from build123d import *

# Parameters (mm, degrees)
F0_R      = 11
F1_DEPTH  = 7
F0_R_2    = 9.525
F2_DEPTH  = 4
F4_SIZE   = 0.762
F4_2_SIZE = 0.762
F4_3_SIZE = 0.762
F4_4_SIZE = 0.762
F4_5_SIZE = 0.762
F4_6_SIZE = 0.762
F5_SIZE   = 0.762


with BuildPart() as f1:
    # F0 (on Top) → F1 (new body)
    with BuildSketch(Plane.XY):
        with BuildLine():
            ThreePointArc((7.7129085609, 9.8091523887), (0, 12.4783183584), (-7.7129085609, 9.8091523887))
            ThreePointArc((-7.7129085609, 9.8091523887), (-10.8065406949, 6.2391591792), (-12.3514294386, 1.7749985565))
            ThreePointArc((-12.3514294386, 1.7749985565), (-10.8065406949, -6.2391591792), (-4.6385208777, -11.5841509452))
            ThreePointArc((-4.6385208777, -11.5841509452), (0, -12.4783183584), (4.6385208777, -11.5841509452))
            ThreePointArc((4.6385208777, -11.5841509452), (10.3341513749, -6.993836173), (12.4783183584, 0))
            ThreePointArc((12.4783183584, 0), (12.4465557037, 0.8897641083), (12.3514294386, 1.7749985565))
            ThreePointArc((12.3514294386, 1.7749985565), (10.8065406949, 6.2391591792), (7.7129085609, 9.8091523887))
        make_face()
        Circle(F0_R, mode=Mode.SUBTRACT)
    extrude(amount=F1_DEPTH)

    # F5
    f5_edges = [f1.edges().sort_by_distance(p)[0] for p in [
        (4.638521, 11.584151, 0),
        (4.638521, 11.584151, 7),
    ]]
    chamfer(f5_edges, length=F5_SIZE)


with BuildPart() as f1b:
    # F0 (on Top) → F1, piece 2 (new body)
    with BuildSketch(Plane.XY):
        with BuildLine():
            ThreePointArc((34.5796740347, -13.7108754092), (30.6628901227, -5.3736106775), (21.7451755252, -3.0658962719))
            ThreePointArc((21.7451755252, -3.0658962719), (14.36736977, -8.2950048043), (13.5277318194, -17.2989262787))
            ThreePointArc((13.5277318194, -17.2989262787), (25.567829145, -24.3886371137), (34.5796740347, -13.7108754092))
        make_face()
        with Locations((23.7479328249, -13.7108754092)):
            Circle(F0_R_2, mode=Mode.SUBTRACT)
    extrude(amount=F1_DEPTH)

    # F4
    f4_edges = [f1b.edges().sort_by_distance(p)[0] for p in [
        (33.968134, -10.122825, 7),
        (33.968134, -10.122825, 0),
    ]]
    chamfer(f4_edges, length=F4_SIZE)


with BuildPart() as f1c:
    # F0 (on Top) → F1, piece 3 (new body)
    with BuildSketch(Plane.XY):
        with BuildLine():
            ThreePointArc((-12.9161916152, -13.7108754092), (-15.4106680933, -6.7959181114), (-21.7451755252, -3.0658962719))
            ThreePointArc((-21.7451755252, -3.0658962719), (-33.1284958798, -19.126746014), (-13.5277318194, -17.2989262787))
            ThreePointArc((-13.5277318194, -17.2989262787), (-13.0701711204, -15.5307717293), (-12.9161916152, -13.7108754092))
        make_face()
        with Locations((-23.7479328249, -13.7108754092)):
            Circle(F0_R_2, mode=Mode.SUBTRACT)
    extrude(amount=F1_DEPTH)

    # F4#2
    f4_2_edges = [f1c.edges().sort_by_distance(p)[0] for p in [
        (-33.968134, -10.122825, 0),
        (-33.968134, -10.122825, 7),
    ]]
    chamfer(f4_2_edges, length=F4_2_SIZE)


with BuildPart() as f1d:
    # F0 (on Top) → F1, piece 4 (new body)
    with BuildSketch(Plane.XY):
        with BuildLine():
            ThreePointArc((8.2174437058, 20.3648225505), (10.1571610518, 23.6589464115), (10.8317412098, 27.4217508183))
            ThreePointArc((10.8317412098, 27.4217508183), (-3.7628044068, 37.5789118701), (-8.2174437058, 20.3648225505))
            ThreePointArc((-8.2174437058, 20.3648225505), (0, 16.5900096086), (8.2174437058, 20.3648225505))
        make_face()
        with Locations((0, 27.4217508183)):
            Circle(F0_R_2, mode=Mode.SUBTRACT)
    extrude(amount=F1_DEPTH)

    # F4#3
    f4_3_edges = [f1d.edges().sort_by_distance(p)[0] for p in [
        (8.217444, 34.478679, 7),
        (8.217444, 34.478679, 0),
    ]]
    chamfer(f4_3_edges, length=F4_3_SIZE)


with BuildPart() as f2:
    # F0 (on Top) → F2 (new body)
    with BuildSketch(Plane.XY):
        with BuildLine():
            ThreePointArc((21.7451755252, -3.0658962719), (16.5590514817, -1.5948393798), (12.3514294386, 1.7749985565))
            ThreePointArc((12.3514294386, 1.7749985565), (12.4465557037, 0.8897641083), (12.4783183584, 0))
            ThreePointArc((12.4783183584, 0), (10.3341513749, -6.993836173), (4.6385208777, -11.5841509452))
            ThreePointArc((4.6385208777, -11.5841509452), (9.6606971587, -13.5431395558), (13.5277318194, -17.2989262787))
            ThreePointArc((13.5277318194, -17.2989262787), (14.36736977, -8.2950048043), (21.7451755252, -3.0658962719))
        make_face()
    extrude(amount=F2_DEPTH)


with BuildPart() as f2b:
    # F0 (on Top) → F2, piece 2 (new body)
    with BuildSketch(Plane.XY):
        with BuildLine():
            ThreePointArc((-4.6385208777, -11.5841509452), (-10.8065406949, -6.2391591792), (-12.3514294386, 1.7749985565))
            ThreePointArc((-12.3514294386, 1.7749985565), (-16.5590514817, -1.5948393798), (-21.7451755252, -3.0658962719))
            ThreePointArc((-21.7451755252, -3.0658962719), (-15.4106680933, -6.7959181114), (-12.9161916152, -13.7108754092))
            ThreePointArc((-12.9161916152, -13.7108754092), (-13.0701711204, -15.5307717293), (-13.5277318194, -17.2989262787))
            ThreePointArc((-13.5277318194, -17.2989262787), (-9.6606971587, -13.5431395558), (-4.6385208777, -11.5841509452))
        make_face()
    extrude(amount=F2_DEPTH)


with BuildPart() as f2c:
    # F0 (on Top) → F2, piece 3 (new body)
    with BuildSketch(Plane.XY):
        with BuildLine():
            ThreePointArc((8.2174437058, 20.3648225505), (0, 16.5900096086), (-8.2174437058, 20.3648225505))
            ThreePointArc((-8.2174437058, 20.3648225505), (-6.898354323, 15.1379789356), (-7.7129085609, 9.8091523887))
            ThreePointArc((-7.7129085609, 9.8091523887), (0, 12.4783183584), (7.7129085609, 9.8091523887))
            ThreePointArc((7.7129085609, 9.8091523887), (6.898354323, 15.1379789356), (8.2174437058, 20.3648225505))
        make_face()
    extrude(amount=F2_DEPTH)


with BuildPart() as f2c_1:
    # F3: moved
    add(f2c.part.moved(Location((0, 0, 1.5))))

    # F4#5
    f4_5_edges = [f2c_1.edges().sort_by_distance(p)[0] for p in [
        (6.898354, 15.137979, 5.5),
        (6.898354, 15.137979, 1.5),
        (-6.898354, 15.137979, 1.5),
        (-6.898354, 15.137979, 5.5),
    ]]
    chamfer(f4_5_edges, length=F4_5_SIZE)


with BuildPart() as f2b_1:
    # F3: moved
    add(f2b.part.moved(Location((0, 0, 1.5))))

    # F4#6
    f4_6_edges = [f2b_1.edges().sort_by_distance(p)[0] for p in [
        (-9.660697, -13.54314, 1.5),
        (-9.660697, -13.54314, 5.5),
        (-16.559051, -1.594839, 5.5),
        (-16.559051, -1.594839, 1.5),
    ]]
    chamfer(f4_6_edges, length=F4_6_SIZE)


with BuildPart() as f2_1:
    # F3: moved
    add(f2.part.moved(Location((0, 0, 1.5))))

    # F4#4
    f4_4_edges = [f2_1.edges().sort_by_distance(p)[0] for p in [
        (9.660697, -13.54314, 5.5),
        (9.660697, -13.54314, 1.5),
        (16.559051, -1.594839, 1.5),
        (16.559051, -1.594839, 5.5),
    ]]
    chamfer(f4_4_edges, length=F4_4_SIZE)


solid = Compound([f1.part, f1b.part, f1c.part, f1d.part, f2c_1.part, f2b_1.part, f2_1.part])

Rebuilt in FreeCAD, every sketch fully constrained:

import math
import FreeCAD as App
import Part
import Sketcher
Q = App.Units.Quantity


def edges_at(feature, points):
    """Names of the edges that pass closest to the given points."""
    edges = feature.Shape.Edges
    near = lambda p: min(range(len(edges)), key=lambda i: edges[i].distToShape(Part.Vertex(*p))[0])
    return sorted({f"Edge{near(p) + 1}" for p in points})

doc = App.newDocument("Part")
body = doc.addObject("PartDesign::Body", "Body")

# Sketch on XY plane
sketch1 = body.newObject("Sketcher::SketchObject", "Sketch")
sketch1.AttachmentSupport = (doc.getObject("XY_Plane"), [""])
sketch1.MapMode = "FlatFace"
sketch1.addGeometry(Part.ArcOfCircle(Part.Circle(App.Vector(0, 0, 0), App.Vector(0, 0, 1), 12.5), math.radians(52), math.radians(128)), False)
sketch1.addGeometry(Part.ArcOfCircle(Part.Circle(App.Vector(0, 0, 0), App.Vector(0, 0, 1), 12.5), math.radians(128), math.radians(172)), False)
sketch1.addGeometry(Part.ArcOfCircle(Part.Circle(App.Vector(0, 0, 0), App.Vector(0, 0, 1), 12.5), math.radians(172), math.radians(248)), False)
sketch1.addGeometry(Part.ArcOfCircle(Part.Circle(App.Vector(0, 0, 0), App.Vector(0, 0, 1), 12.5), math.radians(-112), math.radians(-68)), False)
sketch1.addGeometry(Part.ArcOfCircle(Part.Circle(App.Vector(0, 0, 0), App.Vector(0, 0, 1), 12.5), math.radians(-68), math.radians(0)), False)
sketch1.addGeometry(Part.ArcOfCircle(Part.Circle(App.Vector(0, 0, 0), App.Vector(0, 0, 1), 12.5), math.radians(0), math.radians(8.18)), False)
sketch1.addGeometry(Part.ArcOfCircle(Part.Circle(App.Vector(0, 0, 0), App.Vector(0, 0, 1), 12.5), math.radians(8), math.radians(52)), False)
sketch1.addGeometry(Part.Circle(App.Vector(0, 0, 0), App.Vector(0, 0, 1), 11), False)
sketch1.addConstraint(Sketcher.Constraint("Tangent", 0, 2, 1, 1))
sketch1.addConstraint(Sketcher.Constraint("Tangent", 1, 2, 2, 1))
sketch1.addConstraint(Sketcher.Constraint("Tangent", 2, 2, 3, 1))
sketch1.addConstraint(Sketcher.Constraint("Tangent", 3, 2, 4, 1))
sketch1.addConstraint(Sketcher.Constraint("Tangent", 4, 2, 5, 1))
sketch1.addConstraint(Sketcher.Constraint("Tangent", 5, 2, 6, 1))
sketch1.addConstraint(Sketcher.Constraint("Tangent", 6, 2, 0, 1))
sketch1.addConstraint(Sketcher.Constraint("Coincident", 0, 3, -1, 1))
sketch1.addConstraint(Sketcher.Constraint("Coincident", 2, 3, -1, 1))
sketch1.addConstraint(Sketcher.Constraint("Coincident", 4, 3, -1, 1))
sketch1.addConstraint(Sketcher.Constraint("Coincident", 7, 3, -1, 1))
sketch1.addConstraint(Sketcher.Constraint("PointOnObject", 4, 2, -1))
sketch1.addConstraint(Sketcher.Constraint("Horizontal", 2, 2, 3, 2))
sketch1.addConstraint(Sketcher.Constraint("Horizontal", 1, 2, 5, 2))
sketch1.addConstraint(Sketcher.Constraint("Horizontal", 0, 2, 6, 2))
sketch1.addConstraint(Sketcher.Constraint("Diameter", 7, Q("22 mm")))
sketch1.addConstraint(Sketcher.Constraint("Radius", 0, Q("12.478318 mm")))
sketch1.addConstraint(Sketcher.Constraint("DistanceY", -1, 1, 1, 2, Q("1.774999 mm")))
sketch1.addConstraint(Sketcher.Constraint("DistanceX", 0, 2, -1, 1, Q("7.712909 mm")))
sketch1.addConstraint(Sketcher.Constraint("DistanceX", 2, 2, -1, 1, Q("4.638521 mm")))
pad1 = body.newObject("PartDesign::Pad", "Pad")
pad1.Profile = sketch1
pad1.Length = 7
doc.recompute()

chamfer = body.newObject("PartDesign::Chamfer", "Chamfer")
chamfer.Base = (pad1, edges_at(pad1, [(0, 12.478, 0), (0, 12.478, 7)]))
chamfer.Size = 0.762
body2 = doc.addObject("PartDesign::Body", "Body001")

# Sketch on XY plane
sketch2 = body2.newObject("Sketcher::SketchObject", "Sketch001")
sketch2.AttachmentSupport = (doc.getObject("XY_Plane001"), [""])
sketch2.MapMode = "FlatFace"
sketch2.addGeometry(Part.ArcOfCircle(Part.Circle(App.Vector(24, -14, 0), App.Vector(0, 0, 1), 11), math.radians(0), math.radians(101)), False)
sketch2.addGeometry(Part.ArcOfCircle(Part.Circle(App.Vector(24, -14, 0), App.Vector(0, 0, 1), 11), math.radians(101), math.radians(199)), False)
sketch2.addGeometry(Part.ArcOfCircle(Part.Circle(App.Vector(24, -14, 0), App.Vector(0, 0, 1), 11), math.radians(-161), math.radians(0)), False)
sketch2.addGeometry(Part.Circle(App.Vector(24, -14, 0), App.Vector(0, 0, 1), 10), False)
sketch2.addConstraint(Sketcher.Constraint("Tangent", 0, 2, 1, 1))
sketch2.addConstraint(Sketcher.Constraint("Tangent", 1, 2, 2, 1))
sketch2.addConstraint(Sketcher.Constraint("Tangent", 2, 2, 0, 1))
sketch2.addConstraint(Sketcher.Constraint("Coincident", 3, 3, 0, 3))
sketch2.addConstraint(Sketcher.Constraint("Horizontal", 3, 3, 2, 2))
sketch2.addConstraint(Sketcher.Constraint("Diameter", 3, Q("19.05 mm")))
sketch2.addConstraint(Sketcher.Constraint("Radius", 0, Q("10.831741 mm")))
sketch2.addConstraint(Sketcher.Constraint("DistanceX", 1, 2, 0, 3, Q("10.220201 mm")))
sketch2.addConstraint(Sketcher.Constraint("DistanceX", 0, 2, 2, 2, Q("12.834499 mm")))
sketch2.addConstraint(Sketcher.Constraint("DistanceX", -1, 1, 1, 2, Q("13.527732 mm")))
sketch2.addConstraint(Sketcher.Constraint("DistanceY", 0, 3, -1, 1, Q("13.710875 mm")))
pad2 = body2.newObject("PartDesign::Pad", "Pad001")
pad2.Profile = sketch2
pad2.Length = 7
doc.recompute()

chamfer2 = body2.newObject("PartDesign::Chamfer", "Chamfer001")
chamfer2.Base = (pad2, edges_at(pad2, [(30.663, -5.374, 7), (30.663, -5.374, 0)]))
chamfer2.Size = 0.762
body3 = doc.addObject("PartDesign::Body", "Body002")

# Sketch on XY plane
sketch3 = body3.newObject("Sketcher::SketchObject", "Sketch002")
sketch3.AttachmentSupport = (doc.getObject("XY_Plane002"), [""])
sketch3.MapMode = "FlatFace"
sketch3.addGeometry(Part.ArcOfCircle(Part.Circle(App.Vector(-23.7, -13.7, 0), App.Vector(0, 0, 1), 10.8), math.radians(0), math.radians(79)), False)
sketch3.addGeometry(Part.ArcOfCircle(Part.Circle(App.Vector(-23.7, -13.7, 0), App.Vector(0, 0, 1), 10.8), math.radians(79), math.radians(341)), False)
sketch3.addGeometry(Part.ArcOfCircle(Part.Circle(App.Vector(-23.7, -13.7, 0), App.Vector(0, 0, 1), 10.8), math.radians(-19.34), math.radians(0)), False)
sketch3.addGeometry(Part.Circle(App.Vector(-23.7, -13.7, 0), App.Vector(0, 0, 1), 9.5), False)
sketch3.addConstraint(Sketcher.Constraint("Tangent", 0, 2, 1, 1))
sketch3.addConstraint(Sketcher.Constraint("Tangent", 1, 2, 2, 1))
sketch3.addConstraint(Sketcher.Constraint("Tangent", 2, 2, 0, 1))
sketch3.addConstraint(Sketcher.Constraint("Coincident", 3, 3, 0, 3))
sketch3.addConstraint(Sketcher.Constraint("Horizontal", 3, 3, 2, 2))
sketch3.addConstraint(Sketcher.Constraint("Diameter", 3, Q("19.05 mm")))
sketch3.addConstraint(Sketcher.Constraint("Radius", 0, Q("10.831741 mm")))
sketch3.addConstraint(Sketcher.Constraint("DistanceX", 0, 3, 1, 2, Q("10.220201 mm")))
sketch3.addConstraint(Sketcher.Constraint("DistanceX", 1, 2, -1, 1, Q("13.527732 mm")))
sketch3.addConstraint(Sketcher.Constraint("DistanceY", 0, 3, 0, 2, Q("10.644979 mm")))
sketch3.addConstraint(Sketcher.Constraint("DistanceY", 0, 3, -1, 1, Q("13.710875 mm")))
pad3 = body3.newObject("PartDesign::Pad", "Pad002")
pad3.Profile = sketch3
pad3.Length = 7
doc.recompute()

chamfer3 = body3.newObject("PartDesign::Chamfer", "Chamfer002")
chamfer3.Base = (pad3, edges_at(pad3, [(-33.128, -19.127, 0), (-33.128, -19.127, 7)]))
chamfer3.Size = 0.762
body4 = doc.addObject("PartDesign::Body", "Body003")

# Sketch on XY plane
sketch4 = body4.newObject("Sketcher::SketchObject", "Sketch003")
sketch4.AttachmentSupport = (doc.getObject("XY_Plane003"), [""])
sketch4.MapMode = "FlatFace"
sketch4.addGeometry(Part.ArcOfCircle(Part.Circle(App.Vector(0, 27, 0), App.Vector(0, 0, 1), 11), math.radians(-41), math.radians(0)), False)
sketch4.addGeometry(Part.ArcOfCircle(Part.Circle(App.Vector(0, 27, 0), App.Vector(0, 0, 1), 11), math.radians(0), math.radians(221)), False)
sketch4.addGeometry(Part.ArcOfCircle(Part.Circle(App.Vector(0, 27, 0), App.Vector(0, 0, 1), 11), math.radians(-139), math.radians(-41)), False)
sketch4.addGeometry(Part.Circle(App.Vector(0, 27, 0), App.Vector(0, 0, 1), 10), False)
sketch4.addConstraint(Sketcher.Constraint("Tangent", 0, 2, 1, 1))
sketch4.addConstraint(Sketcher.Constraint("Tangent", 1, 2, 2, 1))
sketch4.addConstraint(Sketcher.Constraint("Tangent", 2, 2, 0, 1))
sketch4.addConstraint(Sketcher.Constraint("Coincident", 3, 3, 0, 3))
sketch4.addConstraint(Sketcher.Constraint("Symmetric", 1, 2, 2, 2, -2))
sketch4.addConstraint(Sketcher.Constraint("Horizontal", 3, 3, 0, 2))
sketch4.addConstraint(Sketcher.Constraint("Diameter", 3, Q("19.05 mm")))
sketch4.addConstraint(Sketcher.Constraint("Radius", 0, Q("10.831741 mm")))
sketch4.addConstraint(Sketcher.Constraint("DistanceY", -1, 1, 0, 3, Q("27.421751 mm")))
sketch4.addConstraint(Sketcher.Constraint("DistanceY", 1, 2, 0, 3, Q("7.056928 mm")))
pad4 = body4.newObject("PartDesign::Pad", "Pad003")
pad4.Profile = sketch4
pad4.Length = 7
doc.recompute()

chamfer4 = body4.newObject("PartDesign::Chamfer", "Chamfer003")
chamfer4.Base = (pad4, edges_at(pad4, [(-3.763, 37.579, 7), (-3.763, 37.579, 0)]))
chamfer4.Size = 0.762
body5 = doc.addObject("PartDesign::Body", "Body004")

# Sketch on XY plane
sketch5 = body5.newObject("Sketcher::SketchObject", "Sketch004")
sketch5.AttachmentSupport = (doc.getObject("XY_Plane004"), [""])
sketch5.MapMode = "FlatFace"
sketch5.addGeometry(Part.ArcOfCircle(Part.Circle(App.Vector(22.8, 10.5, 0), App.Vector(0, 0, 1), 13.6), math.radians(-140), math.radians(-94)), False)
sketch5.addGeometry(Part.ArcOfCircle(Part.Circle(App.Vector(0, 0, 0), App.Vector(0, 0, 1), 12.5), math.radians(0), math.radians(8.18)), False)
sketch5.addGeometry(Part.ArcOfCircle(Part.Circle(App.Vector(0, 0, 0), App.Vector(0, 0, 1), 12.5), math.radians(-68), math.radians(0)), False)
sketch5.addGeometry(Part.ArcOfCircle(Part.Circle(App.Vector(2.3, -25, 0), App.Vector(0, 0, 1), 13.6), math.radians(34), math.radians(80)), False)
sketch5.addGeometry(Part.ArcOfCircle(Part.Circle(App.Vector(23.7, -13.7, 0), App.Vector(0, 0, 1), 10.8), math.radians(101), math.radians(199)), False)
sketch5.addConstraint(Sketcher.Constraint("Coincident", 0, 1, 1, 2))
sketch5.addConstraint(Sketcher.Constraint("Tangent", 1, 1, 2, 2))
sketch5.addConstraint(Sketcher.Constraint("Coincident", 2, 1, 3, 2))
sketch5.addConstraint(Sketcher.Constraint("Coincident", 3, 1, 4, 2))
sketch5.addConstraint(Sketcher.Constraint("Coincident", 4, 1, 0, 2))
sketch5.addConstraint(Sketcher.Constraint("Coincident", 1, 3, -1, 1))
sketch5.addConstraint(Sketcher.Constraint("Equal", 1, 2))
sketch5.addConstraint(Sketcher.Constraint("Equal", 0, 3))
sketch5.addConstraint(Sketcher.Constraint("PointOnObject", 1, 1, -1))
sketch5.addConstraint(Sketcher.Constraint("Radius", 0, Q("13.604312 mm")))
sketch5.addConstraint(Sketcher.Constraint("Radius", 1, Q("12.478318 mm")))
sketch5.addConstraint(Sketcher.Constraint("Radius", 4, Q("10.831741 mm")))
sketch5.addConstraint(Sketcher.Constraint("DistanceY", -1, 1, 0, 1, Q("1.774999 mm")))
sketch5.addConstraint(Sketcher.Constraint("DistanceX", 3, 1, 4, 3, Q("10.220201 mm")))
sketch5.addConstraint(Sketcher.Constraint("DistanceY", 3, 3, 3, 1, Q("7.687702 mm")))
sketch5.addConstraint(Sketcher.Constraint("DistanceY", -1, 1, 0, 3, Q("10.49816 mm")))
sketch5.addConstraint(Sketcher.Constraint("DistanceY", 3, 3, -1, 1, Q("24.986628 mm")))
sketch5.addConstraint(Sketcher.Constraint("DistanceX", -1, 1, 2, 1, Q("4.638521 mm")))
pad5 = body5.newObject("PartDesign::Pad", "Pad004")
pad5.Profile = sketch5
pad5.Length = 4
body6 = doc.addObject("PartDesign::Body", "Body005")

# Sketch on XY plane
sketch6 = body6.newObject("Sketcher::SketchObject", "Sketch005")
sketch6.AttachmentSupport = (doc.getObject("XY_Plane005"), [""])
sketch6.MapMode = "FlatFace"
sketch6.addGeometry(Part.ArcOfCircle(Part.Circle(App.Vector(0, 0, 0), App.Vector(0, 0, 1), 12.5), math.radians(172), math.radians(248)), False)
sketch6.addGeometry(Part.ArcOfCircle(Part.Circle(App.Vector(-22.8, 10.5, 0), App.Vector(0, 0, 1), 13.6), math.radians(-86), math.radians(-40)), False)
sketch6.addGeometry(Part.ArcOfCircle(Part.Circle(App.Vector(-23.7, -13.7, 0), App.Vector(0, 0, 1), 10.8), math.radians(0), math.radians(79)), False)
sketch6.addGeometry(Part.ArcOfCircle(Part.Circle(App.Vector(-23.7, -13.7, 0), App.Vector(0, 0, 1), 10.8), math.radians(-19.34), math.radians(0)), False)
sketch6.addGeometry(Part.ArcOfCircle(Part.Circle(App.Vector(-2.3, -25, 0), App.Vector(0, 0, 1), 13.6), math.radians(100), math.radians(146)), False)
sketch6.addConstraint(Sketcher.Constraint("Coincident", 0, 1, 1, 2))
sketch6.addConstraint(Sketcher.Constraint("Coincident", 1, 1, 2, 2))
sketch6.addConstraint(Sketcher.Constraint("Tangent", 2, 1, 3, 2))
sketch6.addConstraint(Sketcher.Constraint("Coincident", 3, 1, 4, 2))
sketch6.addConstraint(Sketcher.Constraint("Coincident", 4, 1, 0, 2))
sketch6.addConstraint(Sketcher.Constraint("Coincident", 0, 3, -1, 1))
sketch6.addConstraint(Sketcher.Constraint("Equal", 2, 3))
sketch6.addConstraint(Sketcher.Constraint("Equal", 1, 4))
sketch6.addConstraint(Sketcher.Constraint("Horizontal", 3, 3, 2, 1))
sketch6.addConstraint(Sketcher.Constraint("Radius", 0, Q("12.478318 mm")))
sketch6.addConstraint(Sketcher.Constraint("Radius", 1, Q("13.604312 mm")))
sketch6.addConstraint(Sketcher.Constraint("Radius", 2, Q("10.831741 mm")))
sketch6.addConstraint(Sketcher.Constraint("DistanceY", -1, 1, 0, 1, Q("1.774999 mm")))
sketch6.addConstraint(Sketcher.Constraint("DistanceX", 2, 3, 3, 1, Q("10.220201 mm")))
sketch6.addConstraint(Sketcher.Constraint("DistanceY", 4, 3, 3, 1, Q("7.687702 mm")))
sketch6.addConstraint(Sketcher.Constraint("DistanceY", -1, 1, 1, 3, Q("10.49816 mm")))
sketch6.addConstraint(Sketcher.Constraint("DistanceY", 4, 3, -1, 1, Q("24.986628 mm")))
sketch6.addConstraint(Sketcher.Constraint("DistanceX", 2, 1, -1, 1, Q("12.916192 mm")))
pad6 = body6.newObject("PartDesign::Pad", "Pad005")
pad6.Profile = sketch6
pad6.Length = 4
body7 = doc.addObject("PartDesign::Body", "Body006")

# Sketch on XY plane
sketch7 = body7.newObject("Sketcher::SketchObject", "Sketch006")
sketch7.AttachmentSupport = (doc.getObject("XY_Plane006"), [""])
sketch7.MapMode = "FlatFace"
sketch7.addGeometry(Part.ArcOfCircle(Part.Circle(App.Vector(0, 27, 0), App.Vector(0, 0, 1), 11), math.radians(-139), math.radians(-41)), False)
sketch7.addGeometry(Part.ArcOfCircle(Part.Circle(App.Vector(-20, 14, 0), App.Vector(0, 0, 1), 14), math.radians(-20), math.radians(26)), False)
sketch7.addGeometry(Part.ArcOfCircle(Part.Circle(App.Vector(0, 0, 0), App.Vector(0, 0, 1), 12), math.radians(52), math.radians(128)), False)
sketch7.addGeometry(Part.ArcOfCircle(Part.Circle(App.Vector(20, 14, 0), App.Vector(0, 0, 1), 14), math.radians(154), math.radians(200)), False)
sketch7.addConstraint(Sketcher.Constraint("Coincident", 0, 1, 1, 2))
sketch7.addConstraint(Sketcher.Constraint("Coincident", 1, 1, 2, 2))
sketch7.addConstraint(Sketcher.Constraint("Coincident", 2, 1, 3, 2))
sketch7.addConstraint(Sketcher.Constraint("Coincident", 3, 1, 0, 2))
sketch7.addConstraint(Sketcher.Constraint("Coincident", 2, 3, -1, 1))
sketch7.addConstraint(Sketcher.Constraint("Equal", 1, 3))
sketch7.addConstraint(Sketcher.Constraint("Symmetric", 1, 3, 3, 3, -2))
sketch7.addConstraint(Sketcher.Constraint("PointOnObject", 0, 3, -2))
sketch7.addConstraint(Sketcher.Constraint("Radius", 0, Q("10.831741 mm")))
sketch7.addConstraint(Sketcher.Constraint("Radius", 1, Q("13.604312 mm")))
sketch7.addConstraint(Sketcher.Constraint("Radius", 2, Q("12.478318 mm")))
sketch7.addConstraint(Sketcher.Constraint("DistanceY", 1, 1, 0, 3, Q("17.612598 mm")))
sketch7.addConstraint(Sketcher.Constraint("DistanceY", -1, 1, 0, 3, Q("27.421751 mm")))
sketch7.addConstraint(Sketcher.Constraint("DistanceY", 0, 1, 0, 3, Q("7.056928 mm")))
pad7 = body7.newObject("PartDesign::Pad", "Pad006")
pad7.Profile = sketch7
pad7.Length = 4
body8 = doc.addObject("PartDesign::Body", "Body007")
doc.recompute()

body7.Placement = App.Placement(App.Vector(0, 0, 1.5), App.Rotation(App.Vector(0, 0, 1), 0))
boolean = body8.newObject("PartDesign::Boolean", "Boolean")
boolean.Type = "Fuse"
boolean.addObjects([body7])
doc.recompute()

chamfer5 = body8.newObject("PartDesign::Chamfer", "Chamfer004")
chamfer5.Base = (boolean, edges_at(boolean, [
    (6.898, 15.138, 5.5),
    (6.898, 15.138, 1.5),
    (-6.898, 15.138, 1.5),
    (-6.898, 15.138, 5.5),
]))
chamfer5.Size = 0.762
body9 = doc.addObject("PartDesign::Body", "Body008")
doc.recompute()

body6.Placement = App.Placement(App.Vector(0, 0, 1.5), App.Rotation(App.Vector(0, 0, 1), 0))
boolean2 = body9.newObject("PartDesign::Boolean", "Boolean001")
boolean2.Type = "Fuse"
boolean2.addObjects([body6])
doc.recompute()

chamfer6 = body9.newObject("PartDesign::Chamfer", "Chamfer005")
chamfer6.Base = (boolean2, edges_at(boolean2, [
    (-9.661, -13.543, 1.5),
    (-9.661, -13.543, 5.5),
    (-16.559, -1.595, 5.5),
    (-16.559, -1.595, 1.5),
]))
chamfer6.Size = 0.762
body10 = doc.addObject("PartDesign::Body", "Body009")
doc.recompute()

body5.Placement = App.Placement(App.Vector(0, 0, 1.5), App.Rotation(App.Vector(0, 0, 1), 0))
boolean3 = body10.newObject("PartDesign::Boolean", "Boolean002")
boolean3.Type = "Fuse"
boolean3.addObjects([body5])
doc.recompute()

chamfer7 = body10.newObject("PartDesign::Chamfer", "Chamfer006")
chamfer7.Base = (boolean3, edges_at(boolean3, [
    (9.661, -13.543, 5.5),
    (9.661, -13.543, 1.5),
    (16.559, -1.595, 1.5),
    (16.559, -1.595, 5.5),
]))
chamfer7.Size = 0.762

doc.recompute()
